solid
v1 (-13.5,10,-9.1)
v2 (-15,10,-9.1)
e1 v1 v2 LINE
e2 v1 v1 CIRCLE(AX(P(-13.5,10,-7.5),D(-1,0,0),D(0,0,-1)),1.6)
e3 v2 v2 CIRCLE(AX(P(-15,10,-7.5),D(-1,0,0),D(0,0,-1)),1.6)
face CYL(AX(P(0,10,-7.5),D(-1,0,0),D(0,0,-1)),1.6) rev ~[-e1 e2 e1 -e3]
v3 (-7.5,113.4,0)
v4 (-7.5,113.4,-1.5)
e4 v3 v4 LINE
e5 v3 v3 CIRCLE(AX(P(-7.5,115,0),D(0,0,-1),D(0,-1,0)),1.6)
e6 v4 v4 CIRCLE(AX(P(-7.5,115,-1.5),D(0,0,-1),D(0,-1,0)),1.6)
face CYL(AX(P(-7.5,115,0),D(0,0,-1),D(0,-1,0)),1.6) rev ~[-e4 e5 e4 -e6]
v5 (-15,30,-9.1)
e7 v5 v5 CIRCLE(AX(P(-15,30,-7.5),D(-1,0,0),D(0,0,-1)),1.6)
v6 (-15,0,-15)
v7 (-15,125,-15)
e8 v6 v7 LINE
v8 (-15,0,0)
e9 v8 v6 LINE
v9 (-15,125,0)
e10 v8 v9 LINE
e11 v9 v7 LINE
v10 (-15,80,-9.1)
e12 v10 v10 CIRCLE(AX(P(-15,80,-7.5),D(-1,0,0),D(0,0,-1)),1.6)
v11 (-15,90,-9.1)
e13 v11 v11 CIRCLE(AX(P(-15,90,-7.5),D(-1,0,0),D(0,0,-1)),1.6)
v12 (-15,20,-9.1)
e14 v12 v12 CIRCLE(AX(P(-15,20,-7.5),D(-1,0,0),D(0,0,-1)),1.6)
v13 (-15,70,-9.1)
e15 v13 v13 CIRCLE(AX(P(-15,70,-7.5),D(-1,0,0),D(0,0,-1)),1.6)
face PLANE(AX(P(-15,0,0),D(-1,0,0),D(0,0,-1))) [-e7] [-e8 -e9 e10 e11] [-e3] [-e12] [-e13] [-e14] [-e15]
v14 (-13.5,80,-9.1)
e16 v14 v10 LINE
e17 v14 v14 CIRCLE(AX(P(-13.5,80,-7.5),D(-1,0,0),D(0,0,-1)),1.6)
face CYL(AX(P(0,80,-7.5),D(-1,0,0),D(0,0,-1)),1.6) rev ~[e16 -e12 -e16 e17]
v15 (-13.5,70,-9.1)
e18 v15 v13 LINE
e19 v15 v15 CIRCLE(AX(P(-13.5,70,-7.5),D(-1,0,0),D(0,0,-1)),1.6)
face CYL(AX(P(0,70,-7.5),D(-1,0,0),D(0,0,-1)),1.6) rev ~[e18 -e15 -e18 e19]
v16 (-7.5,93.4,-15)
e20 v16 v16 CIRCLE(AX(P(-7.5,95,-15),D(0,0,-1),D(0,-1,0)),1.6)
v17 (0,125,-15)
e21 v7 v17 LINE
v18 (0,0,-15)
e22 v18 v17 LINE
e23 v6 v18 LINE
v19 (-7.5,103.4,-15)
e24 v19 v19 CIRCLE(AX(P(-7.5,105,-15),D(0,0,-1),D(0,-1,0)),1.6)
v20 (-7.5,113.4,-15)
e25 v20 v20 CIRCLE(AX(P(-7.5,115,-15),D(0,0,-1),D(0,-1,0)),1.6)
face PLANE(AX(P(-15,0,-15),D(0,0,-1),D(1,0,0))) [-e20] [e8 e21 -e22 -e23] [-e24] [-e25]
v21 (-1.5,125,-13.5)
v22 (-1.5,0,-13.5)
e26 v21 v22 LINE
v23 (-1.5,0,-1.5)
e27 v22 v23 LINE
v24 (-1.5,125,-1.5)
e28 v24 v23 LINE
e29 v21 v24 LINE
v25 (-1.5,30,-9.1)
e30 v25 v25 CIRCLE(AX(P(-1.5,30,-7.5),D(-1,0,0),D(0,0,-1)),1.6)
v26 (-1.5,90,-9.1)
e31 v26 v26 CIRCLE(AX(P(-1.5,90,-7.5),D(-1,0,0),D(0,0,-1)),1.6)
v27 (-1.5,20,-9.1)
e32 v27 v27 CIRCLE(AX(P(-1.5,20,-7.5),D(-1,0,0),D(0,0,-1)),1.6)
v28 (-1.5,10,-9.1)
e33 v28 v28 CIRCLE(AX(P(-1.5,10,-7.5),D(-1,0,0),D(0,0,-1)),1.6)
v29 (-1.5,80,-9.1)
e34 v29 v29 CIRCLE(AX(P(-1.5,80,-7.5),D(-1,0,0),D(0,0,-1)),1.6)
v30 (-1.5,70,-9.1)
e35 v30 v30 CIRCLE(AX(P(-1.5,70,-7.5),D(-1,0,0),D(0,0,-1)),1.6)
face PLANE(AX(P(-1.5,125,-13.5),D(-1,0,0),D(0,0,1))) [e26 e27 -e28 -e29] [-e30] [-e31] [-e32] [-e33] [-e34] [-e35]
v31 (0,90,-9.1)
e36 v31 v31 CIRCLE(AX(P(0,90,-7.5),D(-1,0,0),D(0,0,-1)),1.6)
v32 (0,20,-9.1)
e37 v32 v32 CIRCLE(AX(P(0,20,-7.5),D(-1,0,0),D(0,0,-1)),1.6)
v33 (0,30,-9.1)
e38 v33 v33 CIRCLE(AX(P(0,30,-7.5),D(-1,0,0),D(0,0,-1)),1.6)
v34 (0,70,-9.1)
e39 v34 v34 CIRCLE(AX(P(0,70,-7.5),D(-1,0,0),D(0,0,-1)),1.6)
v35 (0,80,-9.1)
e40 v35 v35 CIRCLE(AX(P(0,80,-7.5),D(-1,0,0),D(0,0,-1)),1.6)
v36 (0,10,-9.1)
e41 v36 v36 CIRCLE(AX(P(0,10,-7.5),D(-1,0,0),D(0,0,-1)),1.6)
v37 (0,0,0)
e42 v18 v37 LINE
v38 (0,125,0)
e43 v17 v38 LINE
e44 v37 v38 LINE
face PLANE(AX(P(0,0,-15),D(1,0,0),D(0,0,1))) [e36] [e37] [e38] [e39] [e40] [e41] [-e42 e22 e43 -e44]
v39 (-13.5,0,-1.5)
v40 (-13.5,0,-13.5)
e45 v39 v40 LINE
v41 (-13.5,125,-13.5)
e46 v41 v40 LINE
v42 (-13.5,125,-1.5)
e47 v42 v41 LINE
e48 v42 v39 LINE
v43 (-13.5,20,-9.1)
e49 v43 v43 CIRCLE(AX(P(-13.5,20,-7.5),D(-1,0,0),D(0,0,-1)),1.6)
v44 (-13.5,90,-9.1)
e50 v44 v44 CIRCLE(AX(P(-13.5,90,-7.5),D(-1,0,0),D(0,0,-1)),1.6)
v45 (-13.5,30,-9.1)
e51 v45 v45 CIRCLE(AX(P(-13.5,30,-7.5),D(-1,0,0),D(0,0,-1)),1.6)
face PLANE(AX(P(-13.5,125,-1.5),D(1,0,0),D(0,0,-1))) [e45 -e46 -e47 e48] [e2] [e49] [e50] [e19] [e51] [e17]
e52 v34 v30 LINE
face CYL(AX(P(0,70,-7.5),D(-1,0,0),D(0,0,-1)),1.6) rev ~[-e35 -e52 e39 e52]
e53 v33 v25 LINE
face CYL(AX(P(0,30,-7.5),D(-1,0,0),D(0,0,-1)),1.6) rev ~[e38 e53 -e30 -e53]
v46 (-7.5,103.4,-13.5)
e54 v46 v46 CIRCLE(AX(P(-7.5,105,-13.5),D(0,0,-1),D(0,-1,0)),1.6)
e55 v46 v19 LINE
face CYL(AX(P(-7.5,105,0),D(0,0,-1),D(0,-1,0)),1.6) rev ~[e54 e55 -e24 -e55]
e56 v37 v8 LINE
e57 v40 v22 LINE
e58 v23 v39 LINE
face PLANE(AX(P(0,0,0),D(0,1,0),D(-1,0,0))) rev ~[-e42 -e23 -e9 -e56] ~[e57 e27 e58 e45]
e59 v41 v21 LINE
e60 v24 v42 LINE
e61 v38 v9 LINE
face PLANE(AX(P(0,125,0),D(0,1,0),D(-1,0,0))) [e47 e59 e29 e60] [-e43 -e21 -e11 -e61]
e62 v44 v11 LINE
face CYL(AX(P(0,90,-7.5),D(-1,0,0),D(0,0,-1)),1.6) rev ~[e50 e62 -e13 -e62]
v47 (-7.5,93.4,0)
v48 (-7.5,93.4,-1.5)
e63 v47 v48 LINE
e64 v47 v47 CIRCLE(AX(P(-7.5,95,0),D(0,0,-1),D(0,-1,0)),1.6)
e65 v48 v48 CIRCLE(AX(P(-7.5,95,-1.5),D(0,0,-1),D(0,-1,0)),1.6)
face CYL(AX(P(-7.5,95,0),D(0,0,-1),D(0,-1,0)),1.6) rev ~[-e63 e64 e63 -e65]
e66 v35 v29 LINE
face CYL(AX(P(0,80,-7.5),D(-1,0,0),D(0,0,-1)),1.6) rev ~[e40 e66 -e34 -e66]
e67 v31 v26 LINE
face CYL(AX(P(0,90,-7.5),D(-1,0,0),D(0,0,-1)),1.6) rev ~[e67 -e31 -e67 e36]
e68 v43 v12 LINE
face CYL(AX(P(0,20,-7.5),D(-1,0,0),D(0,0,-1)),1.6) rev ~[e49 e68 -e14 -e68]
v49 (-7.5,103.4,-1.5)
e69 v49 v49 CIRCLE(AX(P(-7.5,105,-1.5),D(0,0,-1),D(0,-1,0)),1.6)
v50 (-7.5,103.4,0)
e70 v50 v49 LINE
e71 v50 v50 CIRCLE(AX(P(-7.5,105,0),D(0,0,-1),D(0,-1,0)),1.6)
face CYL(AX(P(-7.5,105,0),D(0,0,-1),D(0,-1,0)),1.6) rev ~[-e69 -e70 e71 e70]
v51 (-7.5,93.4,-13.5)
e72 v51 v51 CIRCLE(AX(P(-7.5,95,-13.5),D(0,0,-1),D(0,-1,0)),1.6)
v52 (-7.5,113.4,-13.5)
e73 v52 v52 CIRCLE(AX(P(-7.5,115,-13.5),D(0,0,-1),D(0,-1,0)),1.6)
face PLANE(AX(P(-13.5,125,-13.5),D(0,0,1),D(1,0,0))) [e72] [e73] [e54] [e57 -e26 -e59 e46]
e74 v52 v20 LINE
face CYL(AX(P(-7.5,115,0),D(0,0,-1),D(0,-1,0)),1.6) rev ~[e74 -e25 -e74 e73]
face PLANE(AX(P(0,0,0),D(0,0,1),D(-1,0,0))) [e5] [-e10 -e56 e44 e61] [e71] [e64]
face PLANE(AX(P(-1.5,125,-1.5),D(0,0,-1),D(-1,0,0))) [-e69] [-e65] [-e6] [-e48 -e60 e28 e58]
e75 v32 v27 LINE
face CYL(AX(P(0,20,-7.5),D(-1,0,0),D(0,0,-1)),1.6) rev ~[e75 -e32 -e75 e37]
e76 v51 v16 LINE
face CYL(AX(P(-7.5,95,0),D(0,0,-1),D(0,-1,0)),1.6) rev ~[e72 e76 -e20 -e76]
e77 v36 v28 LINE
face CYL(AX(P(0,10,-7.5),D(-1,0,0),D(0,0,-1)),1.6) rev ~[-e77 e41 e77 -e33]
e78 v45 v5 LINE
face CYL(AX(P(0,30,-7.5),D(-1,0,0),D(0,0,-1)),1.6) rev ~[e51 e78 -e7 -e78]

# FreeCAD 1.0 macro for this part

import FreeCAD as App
import Part
import Sketcher
from FreeCAD import Vector

doc = App.newDocument("Part")
body = doc.addObject("PartDesign::Body", "Body")

# Sketch on XZ plane
sketch1 = body.newObject("Sketcher::SketchObject", "Sketch")
sketch1.AttachmentSupport = (doc.getObject("XZ_Plane"), [""])
sketch1.MapMode = "FlatFace"
sketch1.addGeometry(Part.LineSegment(Vector(-15, 0, 0), Vector(0, 0, 0)), False)
sketch1.addGeometry(Part.LineSegment(Vector(0, 0, 0), Vector(0, -15, 0)), False)
sketch1.addGeometry(Part.LineSegment(Vector(0, -15, 0), Vector(-15, -15, 0)), False)
sketch1.addGeometry(Part.LineSegment(Vector(-15, -15, 0), Vector(-15, 0, 0)), False)
sketch1.addConstraint(Sketcher.Constraint("Coincident", 0, 2, 1, 1))
sketch1.addConstraint(Sketcher.Constraint("Coincident", 1, 2, 2, 1))
sketch1.addConstraint(Sketcher.Constraint("Coincident", 2, 2, 3, 1))
sketch1.addConstraint(Sketcher.Constraint("Coincident", 3, 2, 0, 1))
sketch1.addConstraint(Sketcher.Constraint("Horizontal", 0))
sketch1.addConstraint(Sketcher.Constraint("Vertical", 1))
sketch1.addConstraint(Sketcher.Constraint("Horizontal", 2))
sketch1.addConstraint(Sketcher.Constraint("Vertical", 3))
sketch1.addConstraint(Sketcher.Constraint("Coincident", 0, 2, -1, 1))
sketch1.addConstraint(Sketcher.Constraint("Equal", 2, 1))
sketch1.addConstraint(Sketcher.Constraint("DistanceX", 0, 1, 0, 2, 15.0))
pad1 = body.newObject("PartDesign::Pad", "Pad")
pad1.Profile = sketch1
pad1.Length = 125
pad1.Reversed = True

# Sketch on XY plane
sketch2 = body.newObject("Sketcher::SketchObject", "Sketch001")
sketch2.AttachmentSupport = (doc.getObject("XY_Plane"), [""])
sketch2.MapMode = "FlatFace"
sketch2.addGeometry(Part.Circle(Vector(-7.5, 115, 0), Vector(0, 0, 1), 1.6), False)
sketch2.addGeometry(Part.Circle(Vector(-7.5, 105, 0), Vector(0, 0, 1), 1.6), False)
sketch2.addGeometry(Part.Circle(Vector(-7.5, 95, 0), Vector(0, 0, 1), 1.6), False)
sketch2.addConstraint(Sketcher.Constraint("Equal", 0, 1))
sketch2.addConstraint(Sketcher.Constraint("Equal", 1, 2))
sketch2.addConstraint(Sketcher.Constraint("Vertical", 0, 3, 1, 3))
sketch2.addConstraint(Sketcher.Constraint("Vertical", 1, 3, 2, 3))
sketch2.addConstraint(Sketcher.Constraint("Diameter", 0, 3.2))
sketch2.addConstraint(Sketcher.Constraint("DistanceY", -1, 1, 0, 3, 115.0))
sketch2.addConstraint(Sketcher.Constraint("DistanceY", -1, 1, 1, 3, 105.0))
sketch2.addConstraint(Sketcher.Constraint("DistanceY", -1, 1, 2, 3, 95.0))
sketch2.addConstraint(Sketcher.Constraint("DistanceX", 0, 3, -1, 1, 7.5))
doc.recompute()
hole = body.newObject("PartDesign::Hole", "Hole")
hole.Profile = sketch2
hole.ThreadType = "None"
hole.Diameter = 3.2
hole.DepthType = "ThroughAll"

# Sketch on YZ plane
sketch3 = body.newObject("Sketcher::SketchObject", "Sketch002")
sketch3.AttachmentSupport = (doc.getObject("YZ_Plane"), [""])
sketch3.MapMode = "FlatFace"
sketch3.addGeometry(Part.Circle(Vector(90, -7.5, 0), Vector(0, 0, 1), 1.6), False)
sketch3.addGeometry(Part.Circle(Vector(80, -7.5, 0), Vector(0, 0, 1), 1.6), False)
sketch3.addGeometry(Part.Circle(Vector(70, -7.5, 0), Vector(0, 0, 1), 1.6), False)
sketch3.addGeometry(Part.Circle(Vector(30, -7.5, 0), Vector(0, 0, 1), 1.6), False)
sketch3.addGeometry(Part.Circle(Vector(20, -7.5, 0), Vector(0, 0, 1), 1.6), False)
sketch3.addGeometry(Part.Circle(Vector(10, -7.5, 0), Vector(0, 0, 1), 1.6), False)
sketch3.addConstraint(Sketcher.Constraint("Equal", 0, 1))
sketch3.addConstraint(Sketcher.Constraint("Equal", 1, 2))
sketch3.addConstraint(Sketcher.Constraint("Equal", 2, 3))
sketch3.addConstraint(Sketcher.Constraint("Equal", 3, 4))
sketch3.addConstraint(Sketcher.Constraint("Equal", 4, 5))
sketch3.addConstraint(Sketcher.Constraint("Horizontal", 0, 3, 1, 3))
sketch3.addConstraint(Sketcher.Constraint("Horizontal", 1, 3, 2, 3))
sketch3.addConstraint(Sketcher.Constraint("Horizontal", 2, 3, 3, 3))
sketch3.addConstraint(Sketcher.Constraint("Horizontal", 3, 3, 4, 3))
sketch3.addConstraint(Sketcher.Constraint("Horizontal", 4, 3, 5, 3))
sketch3.addConstraint(Sketcher.Constraint("Diameter", 0, 3.2))
sketch3.addConstraint(Sketcher.Constraint("DistanceX", -1, 1, 0, 3, 90.0))
sketch3.addConstraint(Sketcher.Constraint("DistanceX", -1, 1, 1, 3, 80.0))
sketch3.addConstraint(Sketcher.Constraint("DistanceX", -1, 1, 2, 3, 70.0))
sketch3.addConstraint(Sketcher.Constraint("DistanceX", -1, 1, 3, 3, 30.0))
sketch3.addConstraint(Sketcher.Constraint("DistanceX", -1, 1, 4, 3, 20.0))
sketch3.addConstraint(Sketcher.Constraint("DistanceX", -1, 1, 5, 3, 10.0))
sketch3.addConstraint(Sketcher.Constraint("DistanceY", 0, 3, -1, 1, 7.5))
doc.recompute()
hole2 = body.newObject("PartDesign::Hole", "Hole001")
hole2.Profile = sketch3
hole2.ThreadType = "None"
hole2.Diameter = 3.2
hole2.DepthType = "ThroughAll"

# Sketch on XZ plane
sketch4 = body.newObject("Sketcher::SketchObject", "Sketch003")
sketch4.AttachmentSupport = (doc.getObject("XZ_Plane"), [""])
sketch4.MapMode = "FlatFace"
sketch4.AttachmentOffset = App.Placement(Vector(0, 0, -125), App.Rotation())
sketch4.addGeometry(Part.LineSegment(Vector(-2, -14, 0), Vector(-14, -14, 0)), False)
sketch4.addGeometry(Part.LineSegment(Vector(-14, -14, 0), Vector(-14, -2, 0)), False)
sketch4.addGeometry(Part.LineSegment(Vector(-14, -2, 0), Vector(-2, -2, 0)), False)
sketch4.addGeometry(Part.LineSegment(Vector(-2, -2, 0), Vector(-2, -14, 0)), False)
sketch4.addConstraint(Sketcher.Constraint("Coincident", 0, 2, 1, 1))
sketch4.addConstraint(Sketcher.Constraint("Coincident", 1, 2, 2, 1))
sketch4.addConstraint(Sketcher.Constraint("Coincident", 2, 2, 3, 1))
sketch4.addConstraint(Sketcher.Constraint("Coincident", 3, 2, 0, 1))
sketch4.addConstraint(Sketcher.Constraint("Horizontal", 0))
sketch4.addConstraint(Sketcher.Constraint("Vertical", 1))
sketch4.addConstraint(Sketcher.Constraint("Horizontal", 2))
sketch4.addConstraint(Sketcher.Constraint("Vertical", 3))
sketch4.addConstraint(Sketcher.Constraint("Equal", 2, 1))
sketch4.addConstraint(Sketcher.Constraint("DistanceX", 0, 2, 0, 1, 12.0))
sketch4.addConstraint(Sketcher.Constraint("DistanceY", 1, 2, -1, 1, 1.5))
sketch4.addConstraint(Sketcher.Constraint("DistanceX", 2, 2, -1, 1, 1.5))
pocket1 = body.newObject("PartDesign::Pocket", "Pocket")
pocket1.Profile = sketch4
pocket1.Length = 140
pocket1.Reversed = True

doc.recompute()
